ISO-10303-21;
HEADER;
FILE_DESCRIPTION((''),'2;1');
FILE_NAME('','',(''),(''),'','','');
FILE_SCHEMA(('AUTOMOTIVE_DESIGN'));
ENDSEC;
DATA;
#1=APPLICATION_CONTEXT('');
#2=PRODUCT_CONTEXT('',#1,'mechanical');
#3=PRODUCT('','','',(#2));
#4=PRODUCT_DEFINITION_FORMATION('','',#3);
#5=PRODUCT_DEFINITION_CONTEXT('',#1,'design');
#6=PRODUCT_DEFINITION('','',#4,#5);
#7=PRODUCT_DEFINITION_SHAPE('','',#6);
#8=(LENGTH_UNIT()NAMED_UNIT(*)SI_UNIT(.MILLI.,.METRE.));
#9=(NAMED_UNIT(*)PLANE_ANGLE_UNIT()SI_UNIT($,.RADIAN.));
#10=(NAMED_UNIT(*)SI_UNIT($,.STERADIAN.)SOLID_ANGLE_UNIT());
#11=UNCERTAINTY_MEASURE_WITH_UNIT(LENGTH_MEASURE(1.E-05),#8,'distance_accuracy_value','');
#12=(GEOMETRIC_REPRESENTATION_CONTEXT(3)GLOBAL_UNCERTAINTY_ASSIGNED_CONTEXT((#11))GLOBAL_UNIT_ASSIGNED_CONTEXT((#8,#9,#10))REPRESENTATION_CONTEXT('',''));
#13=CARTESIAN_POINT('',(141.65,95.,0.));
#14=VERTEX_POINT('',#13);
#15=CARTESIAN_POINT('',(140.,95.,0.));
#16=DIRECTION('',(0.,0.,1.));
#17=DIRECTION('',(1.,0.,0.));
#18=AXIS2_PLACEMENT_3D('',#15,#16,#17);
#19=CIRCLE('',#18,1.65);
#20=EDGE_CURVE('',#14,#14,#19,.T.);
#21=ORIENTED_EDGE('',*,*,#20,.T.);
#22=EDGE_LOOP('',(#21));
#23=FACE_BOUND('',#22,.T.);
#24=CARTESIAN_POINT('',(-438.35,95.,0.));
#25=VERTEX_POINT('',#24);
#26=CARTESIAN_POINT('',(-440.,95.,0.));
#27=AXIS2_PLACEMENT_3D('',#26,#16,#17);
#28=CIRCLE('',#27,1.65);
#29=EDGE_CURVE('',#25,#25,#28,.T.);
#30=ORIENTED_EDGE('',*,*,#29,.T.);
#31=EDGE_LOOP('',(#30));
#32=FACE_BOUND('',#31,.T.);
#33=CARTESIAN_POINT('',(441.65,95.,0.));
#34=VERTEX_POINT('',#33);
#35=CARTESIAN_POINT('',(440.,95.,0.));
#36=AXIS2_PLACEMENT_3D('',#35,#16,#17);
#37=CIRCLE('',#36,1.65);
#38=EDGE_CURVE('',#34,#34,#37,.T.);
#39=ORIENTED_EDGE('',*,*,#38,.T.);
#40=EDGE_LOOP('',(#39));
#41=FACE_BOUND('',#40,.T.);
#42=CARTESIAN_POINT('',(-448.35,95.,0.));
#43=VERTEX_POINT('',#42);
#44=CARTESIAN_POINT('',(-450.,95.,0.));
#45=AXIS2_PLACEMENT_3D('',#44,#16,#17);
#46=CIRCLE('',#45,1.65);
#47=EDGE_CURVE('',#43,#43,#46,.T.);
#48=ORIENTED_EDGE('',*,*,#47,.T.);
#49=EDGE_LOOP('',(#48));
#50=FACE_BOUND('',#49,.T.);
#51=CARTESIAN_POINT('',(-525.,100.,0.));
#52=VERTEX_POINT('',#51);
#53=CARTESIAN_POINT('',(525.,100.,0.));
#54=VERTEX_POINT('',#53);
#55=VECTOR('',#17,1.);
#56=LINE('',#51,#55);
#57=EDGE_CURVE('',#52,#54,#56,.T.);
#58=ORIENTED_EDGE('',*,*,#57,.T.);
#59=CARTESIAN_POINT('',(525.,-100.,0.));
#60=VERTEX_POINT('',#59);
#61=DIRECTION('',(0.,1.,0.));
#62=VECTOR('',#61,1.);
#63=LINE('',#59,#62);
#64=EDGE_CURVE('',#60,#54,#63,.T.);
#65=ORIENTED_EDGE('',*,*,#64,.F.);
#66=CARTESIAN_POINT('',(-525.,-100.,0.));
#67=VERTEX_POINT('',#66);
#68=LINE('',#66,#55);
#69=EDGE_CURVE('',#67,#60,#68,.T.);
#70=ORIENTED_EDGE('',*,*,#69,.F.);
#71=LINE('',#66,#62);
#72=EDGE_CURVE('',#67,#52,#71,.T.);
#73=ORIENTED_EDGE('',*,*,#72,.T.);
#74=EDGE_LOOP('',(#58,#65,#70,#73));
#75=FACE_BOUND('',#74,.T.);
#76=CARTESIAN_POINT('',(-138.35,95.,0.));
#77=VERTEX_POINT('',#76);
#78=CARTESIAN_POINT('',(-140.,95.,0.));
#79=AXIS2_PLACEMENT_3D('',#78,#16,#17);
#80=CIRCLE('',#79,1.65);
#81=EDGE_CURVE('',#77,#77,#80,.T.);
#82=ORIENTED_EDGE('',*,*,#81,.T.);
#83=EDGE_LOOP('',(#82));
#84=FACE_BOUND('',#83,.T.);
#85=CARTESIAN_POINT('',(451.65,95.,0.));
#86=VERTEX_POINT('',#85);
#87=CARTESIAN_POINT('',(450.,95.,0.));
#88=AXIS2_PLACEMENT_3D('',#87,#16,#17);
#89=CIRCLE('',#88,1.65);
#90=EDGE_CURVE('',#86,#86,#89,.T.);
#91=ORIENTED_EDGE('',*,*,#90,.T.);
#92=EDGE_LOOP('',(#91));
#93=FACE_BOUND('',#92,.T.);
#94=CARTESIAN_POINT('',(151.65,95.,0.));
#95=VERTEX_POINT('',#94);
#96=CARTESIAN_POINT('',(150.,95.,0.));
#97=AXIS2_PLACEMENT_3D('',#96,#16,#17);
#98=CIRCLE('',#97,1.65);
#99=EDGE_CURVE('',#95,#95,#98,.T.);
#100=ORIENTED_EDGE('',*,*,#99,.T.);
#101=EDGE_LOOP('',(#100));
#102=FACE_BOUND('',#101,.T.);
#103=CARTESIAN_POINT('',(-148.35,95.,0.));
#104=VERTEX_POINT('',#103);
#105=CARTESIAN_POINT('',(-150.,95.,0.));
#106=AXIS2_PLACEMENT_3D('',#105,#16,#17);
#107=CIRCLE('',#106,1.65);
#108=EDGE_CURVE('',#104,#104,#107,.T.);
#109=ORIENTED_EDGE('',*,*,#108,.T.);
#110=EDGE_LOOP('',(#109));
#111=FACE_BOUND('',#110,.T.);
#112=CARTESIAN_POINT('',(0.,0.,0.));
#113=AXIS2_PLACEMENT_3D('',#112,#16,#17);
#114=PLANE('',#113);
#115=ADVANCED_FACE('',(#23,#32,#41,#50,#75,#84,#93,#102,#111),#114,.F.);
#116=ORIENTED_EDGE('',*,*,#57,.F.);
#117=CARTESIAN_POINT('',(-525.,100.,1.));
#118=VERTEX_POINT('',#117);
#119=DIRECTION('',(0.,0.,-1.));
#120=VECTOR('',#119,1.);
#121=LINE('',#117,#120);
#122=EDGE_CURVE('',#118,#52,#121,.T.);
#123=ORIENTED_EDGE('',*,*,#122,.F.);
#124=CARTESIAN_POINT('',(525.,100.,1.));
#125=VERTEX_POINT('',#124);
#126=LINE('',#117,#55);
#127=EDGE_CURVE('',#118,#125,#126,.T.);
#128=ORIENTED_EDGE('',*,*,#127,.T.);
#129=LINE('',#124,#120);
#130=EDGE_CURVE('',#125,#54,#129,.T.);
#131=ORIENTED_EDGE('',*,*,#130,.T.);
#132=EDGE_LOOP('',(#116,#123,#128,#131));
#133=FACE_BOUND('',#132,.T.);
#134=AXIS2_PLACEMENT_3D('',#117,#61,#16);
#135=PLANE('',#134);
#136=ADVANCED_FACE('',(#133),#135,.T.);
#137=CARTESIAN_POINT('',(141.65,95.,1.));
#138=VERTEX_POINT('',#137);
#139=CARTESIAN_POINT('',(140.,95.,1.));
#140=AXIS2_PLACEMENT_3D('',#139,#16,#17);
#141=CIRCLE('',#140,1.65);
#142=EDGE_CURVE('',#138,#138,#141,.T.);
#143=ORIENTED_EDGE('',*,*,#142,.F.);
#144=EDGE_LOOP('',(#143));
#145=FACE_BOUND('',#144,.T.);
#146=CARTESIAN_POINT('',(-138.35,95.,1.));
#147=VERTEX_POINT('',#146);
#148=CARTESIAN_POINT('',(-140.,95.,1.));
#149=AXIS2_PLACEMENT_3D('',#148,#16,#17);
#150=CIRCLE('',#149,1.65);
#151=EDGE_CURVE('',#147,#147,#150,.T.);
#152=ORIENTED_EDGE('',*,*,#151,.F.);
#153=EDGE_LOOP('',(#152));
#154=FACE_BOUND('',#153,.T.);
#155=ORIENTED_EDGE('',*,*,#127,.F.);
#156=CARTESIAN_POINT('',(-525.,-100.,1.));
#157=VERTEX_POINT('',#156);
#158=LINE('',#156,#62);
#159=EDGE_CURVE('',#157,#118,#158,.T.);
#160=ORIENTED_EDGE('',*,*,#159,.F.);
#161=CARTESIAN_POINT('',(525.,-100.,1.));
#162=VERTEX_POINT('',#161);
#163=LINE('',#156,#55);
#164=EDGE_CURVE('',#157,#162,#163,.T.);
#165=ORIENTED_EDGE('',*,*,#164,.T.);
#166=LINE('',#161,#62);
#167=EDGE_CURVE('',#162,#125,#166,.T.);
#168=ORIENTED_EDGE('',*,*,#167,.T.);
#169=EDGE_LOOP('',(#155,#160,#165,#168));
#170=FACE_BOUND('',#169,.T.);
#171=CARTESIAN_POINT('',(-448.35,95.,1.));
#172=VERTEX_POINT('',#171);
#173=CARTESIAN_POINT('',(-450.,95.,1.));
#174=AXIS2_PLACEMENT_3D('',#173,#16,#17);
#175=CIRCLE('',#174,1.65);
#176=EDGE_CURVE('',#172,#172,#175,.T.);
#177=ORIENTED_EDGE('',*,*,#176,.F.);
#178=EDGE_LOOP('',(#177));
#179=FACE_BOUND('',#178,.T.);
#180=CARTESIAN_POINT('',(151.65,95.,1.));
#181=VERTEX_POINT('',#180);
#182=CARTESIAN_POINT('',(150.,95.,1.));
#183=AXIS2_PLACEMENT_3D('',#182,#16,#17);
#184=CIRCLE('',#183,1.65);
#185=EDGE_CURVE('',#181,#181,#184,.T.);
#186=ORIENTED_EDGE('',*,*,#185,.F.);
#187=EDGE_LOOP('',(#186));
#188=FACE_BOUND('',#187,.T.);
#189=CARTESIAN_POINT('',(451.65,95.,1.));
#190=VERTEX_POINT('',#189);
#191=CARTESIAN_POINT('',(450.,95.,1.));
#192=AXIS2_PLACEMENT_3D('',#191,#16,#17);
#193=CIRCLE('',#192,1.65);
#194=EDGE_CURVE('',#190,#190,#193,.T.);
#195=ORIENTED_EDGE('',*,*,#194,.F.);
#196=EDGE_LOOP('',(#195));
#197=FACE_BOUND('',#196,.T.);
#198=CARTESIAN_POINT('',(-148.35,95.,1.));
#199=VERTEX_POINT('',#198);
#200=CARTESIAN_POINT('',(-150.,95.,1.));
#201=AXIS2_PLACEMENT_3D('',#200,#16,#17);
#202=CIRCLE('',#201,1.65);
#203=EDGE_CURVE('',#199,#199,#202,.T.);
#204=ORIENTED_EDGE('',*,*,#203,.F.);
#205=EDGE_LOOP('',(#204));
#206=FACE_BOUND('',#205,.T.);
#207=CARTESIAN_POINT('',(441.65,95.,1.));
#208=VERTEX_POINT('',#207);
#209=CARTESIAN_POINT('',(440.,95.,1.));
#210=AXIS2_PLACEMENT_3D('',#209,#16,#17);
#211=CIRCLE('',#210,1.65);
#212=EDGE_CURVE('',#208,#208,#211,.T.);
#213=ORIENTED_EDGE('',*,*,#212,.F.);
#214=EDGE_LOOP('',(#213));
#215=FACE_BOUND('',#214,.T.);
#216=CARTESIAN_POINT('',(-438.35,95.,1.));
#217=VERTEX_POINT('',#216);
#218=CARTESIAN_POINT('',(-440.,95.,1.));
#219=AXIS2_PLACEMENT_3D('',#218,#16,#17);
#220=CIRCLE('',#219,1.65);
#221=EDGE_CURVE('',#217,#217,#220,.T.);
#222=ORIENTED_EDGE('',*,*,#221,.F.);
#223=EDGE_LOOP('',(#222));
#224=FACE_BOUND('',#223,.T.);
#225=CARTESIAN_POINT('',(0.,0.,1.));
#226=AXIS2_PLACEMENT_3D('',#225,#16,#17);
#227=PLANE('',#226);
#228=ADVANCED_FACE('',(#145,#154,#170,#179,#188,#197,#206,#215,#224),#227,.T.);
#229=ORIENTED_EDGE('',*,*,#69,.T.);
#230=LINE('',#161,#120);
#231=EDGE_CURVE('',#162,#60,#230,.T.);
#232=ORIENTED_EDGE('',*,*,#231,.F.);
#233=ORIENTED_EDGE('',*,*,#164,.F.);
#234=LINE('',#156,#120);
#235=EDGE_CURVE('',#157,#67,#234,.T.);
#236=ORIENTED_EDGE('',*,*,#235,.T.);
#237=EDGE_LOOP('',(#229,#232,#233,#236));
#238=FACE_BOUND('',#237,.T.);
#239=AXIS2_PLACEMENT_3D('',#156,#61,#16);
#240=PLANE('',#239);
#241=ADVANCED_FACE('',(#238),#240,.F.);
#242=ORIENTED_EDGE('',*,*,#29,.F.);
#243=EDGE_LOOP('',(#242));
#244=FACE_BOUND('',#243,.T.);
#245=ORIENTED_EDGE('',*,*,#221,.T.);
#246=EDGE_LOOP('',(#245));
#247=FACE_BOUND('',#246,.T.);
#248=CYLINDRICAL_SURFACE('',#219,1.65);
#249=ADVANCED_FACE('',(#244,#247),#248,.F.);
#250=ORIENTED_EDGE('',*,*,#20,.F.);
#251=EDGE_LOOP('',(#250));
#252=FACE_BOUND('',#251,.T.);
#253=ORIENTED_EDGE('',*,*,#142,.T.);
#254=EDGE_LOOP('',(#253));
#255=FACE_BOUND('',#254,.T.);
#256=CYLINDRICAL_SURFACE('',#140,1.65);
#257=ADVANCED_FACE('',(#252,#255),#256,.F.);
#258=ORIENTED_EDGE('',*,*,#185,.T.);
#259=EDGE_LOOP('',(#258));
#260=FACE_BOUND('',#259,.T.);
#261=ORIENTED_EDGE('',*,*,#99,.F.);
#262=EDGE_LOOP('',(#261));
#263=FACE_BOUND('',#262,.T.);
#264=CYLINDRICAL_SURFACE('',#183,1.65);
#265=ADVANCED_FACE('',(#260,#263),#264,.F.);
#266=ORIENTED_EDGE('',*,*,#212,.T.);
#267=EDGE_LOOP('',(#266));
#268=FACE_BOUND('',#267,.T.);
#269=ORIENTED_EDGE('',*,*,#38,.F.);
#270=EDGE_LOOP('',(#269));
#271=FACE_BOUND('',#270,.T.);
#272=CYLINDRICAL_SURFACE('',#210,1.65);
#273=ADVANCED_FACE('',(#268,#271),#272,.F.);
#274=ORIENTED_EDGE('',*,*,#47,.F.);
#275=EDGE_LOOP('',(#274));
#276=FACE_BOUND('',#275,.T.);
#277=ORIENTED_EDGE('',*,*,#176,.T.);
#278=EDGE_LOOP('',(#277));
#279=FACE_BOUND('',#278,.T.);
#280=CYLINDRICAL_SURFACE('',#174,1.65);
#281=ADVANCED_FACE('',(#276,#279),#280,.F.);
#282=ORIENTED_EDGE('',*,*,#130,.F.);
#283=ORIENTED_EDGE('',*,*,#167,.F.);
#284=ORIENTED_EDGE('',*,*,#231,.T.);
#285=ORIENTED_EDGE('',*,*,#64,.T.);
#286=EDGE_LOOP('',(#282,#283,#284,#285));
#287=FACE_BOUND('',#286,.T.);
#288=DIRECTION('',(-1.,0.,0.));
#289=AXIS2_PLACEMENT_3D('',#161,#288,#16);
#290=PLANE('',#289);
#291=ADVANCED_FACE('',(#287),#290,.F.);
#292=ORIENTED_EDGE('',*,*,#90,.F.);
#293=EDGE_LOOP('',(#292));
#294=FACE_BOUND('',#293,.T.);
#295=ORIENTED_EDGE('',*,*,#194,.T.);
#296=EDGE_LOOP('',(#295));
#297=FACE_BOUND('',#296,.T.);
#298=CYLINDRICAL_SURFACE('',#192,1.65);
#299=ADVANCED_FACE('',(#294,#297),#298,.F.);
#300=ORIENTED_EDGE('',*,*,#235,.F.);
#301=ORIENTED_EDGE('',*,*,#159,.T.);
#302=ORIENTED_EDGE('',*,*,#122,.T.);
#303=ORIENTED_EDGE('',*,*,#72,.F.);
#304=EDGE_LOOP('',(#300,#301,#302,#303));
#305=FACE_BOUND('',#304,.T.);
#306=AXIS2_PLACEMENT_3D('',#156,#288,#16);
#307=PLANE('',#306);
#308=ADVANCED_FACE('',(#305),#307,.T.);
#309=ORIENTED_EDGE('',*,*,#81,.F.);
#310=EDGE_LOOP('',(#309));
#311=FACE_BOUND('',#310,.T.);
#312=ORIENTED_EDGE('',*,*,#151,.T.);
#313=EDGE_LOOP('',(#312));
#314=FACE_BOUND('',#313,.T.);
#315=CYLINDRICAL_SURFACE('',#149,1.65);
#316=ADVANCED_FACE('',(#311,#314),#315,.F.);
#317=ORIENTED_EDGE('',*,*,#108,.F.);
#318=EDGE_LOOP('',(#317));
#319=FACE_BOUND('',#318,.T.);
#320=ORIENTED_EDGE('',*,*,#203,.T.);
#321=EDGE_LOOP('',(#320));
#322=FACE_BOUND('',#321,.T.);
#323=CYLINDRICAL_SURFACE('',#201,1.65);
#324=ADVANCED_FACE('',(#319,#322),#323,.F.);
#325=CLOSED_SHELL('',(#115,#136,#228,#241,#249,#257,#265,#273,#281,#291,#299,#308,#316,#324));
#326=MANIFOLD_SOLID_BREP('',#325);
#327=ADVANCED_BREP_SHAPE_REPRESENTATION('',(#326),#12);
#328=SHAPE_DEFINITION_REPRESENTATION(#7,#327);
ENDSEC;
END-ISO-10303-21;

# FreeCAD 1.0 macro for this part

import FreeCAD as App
import Part
import Sketcher

V = App.Vector
Q = App.Units.Quantity


def add_polygon(sketch, points):
    """Adds a closed chain of lines whose ends are joined by coincident constraints."""
    first, n = sketch.GeometryCount, len(points)
    for a, b in zip(points, points[1:] + points[:1]):
        sketch.addGeometry(Part.LineSegment(App.Vector(*a, 0), App.Vector(*b, 0)), False)
    for i in range(n):
        sketch.addConstraint(Sketcher.Constraint("Coincident", first + i, 2, first + (i + 1) % n, 1))

doc = App.newDocument("Part")
body = doc.addObject("PartDesign::Body", "Body")

# Sketch on XY plane
sketch1 = doc.addObject("Sketcher::SketchObject", "Sketch")
body.addObject(sketch1)
sketch1.AttachmentSupport = (doc.XY_Plane, [""])
sketch1.MapMode = "FlatFace"
add_polygon(sketch1, [(-525, 100), (-525, -100), (525, -100), (525, 100)])  # lines 0-3
sketch1.addConstraint(Sketcher.Constraint("Vertical", 0))
sketch1.addConstraint(Sketcher.Constraint("Horizontal", 1))
sketch1.addConstraint(Sketcher.Constraint("Vertical", 2))
sketch1.addConstraint(Sketcher.Constraint("Horizontal", 3))
sketch1.addConstraint(Sketcher.Constraint("Symmetric", 0, 2, 2, 2, -1, 1))
sketch1.addConstraint(Sketcher.Constraint("DistanceX", 1, 1, 1, 2, Q("1050 mm")))
sketch1.addConstraint(Sketcher.Constraint("DistanceY", 0, 2, 0, 1, Q("200 mm")))
pad1 = doc.addObject("PartDesign::Pad", "Pad")
body.addObject(pad1)
pad1.Profile = sketch1
pad1.Length = 1

# Sketch on XY plane
sketch2 = doc.addObject("Sketcher::SketchObject", "Sketch001")
body.addObject(sketch2)
sketch2.AttachmentSupport = (doc.XY_Plane, [""])
sketch2.MapMode = "FlatFace"
sketch2.AttachmentOffset = App.Placement(V(0, 0, 1), App.Rotation())
sketch2.addGeometry(Part.Circle(V(-450, 95, 0), V(0, 0, 1), 1.6), False)
sketch2.addGeometry(Part.Circle(V(-440, 95, 0), V(0, 0, 1), 1.6), False)
sketch2.addGeometry(Part.Circle(V(-150, 95, 0), V(0, 0, 1), 1.6), False)
sketch2.addGeometry(Part.Circle(V(-140, 95, 0), V(0, 0, 1), 1.6), False)
sketch2.addConstraint(Sketcher.Constraint("Equal", 0, 1))
sketch2.addConstraint(Sketcher.Constraint("Equal", 1, 2))
sketch2.addConstraint(Sketcher.Constraint("Equal", 2, 3))
sketch2.addConstraint(Sketcher.Constraint("Horizontal", 0, 3, 1, 3))
sketch2.addConstraint(Sketcher.Constraint("Horizontal", 1, 3, 2, 3))
sketch2.addConstraint(Sketcher.Constraint("Horizontal", 2, 3, 3, 3))
sketch2.addConstraint(Sketcher.Constraint("Diameter", 0, Q("3.3 mm")))
sketch2.addConstraint(Sketcher.Constraint("DistanceX", 0, 3, -1, 1, Q("450 mm")))
sketch2.addConstraint(Sketcher.Constraint("DistanceY", -1, 1, 0, 3, Q("95 mm")))
sketch2.addConstraint(Sketcher.Constraint("DistanceX", 1, 3, -1, 1, Q("440 mm")))
sketch2.addConstraint(Sketcher.Constraint("DistanceX", 2, 3, -1, 1, Q("150 mm")))
sketch2.addConstraint(Sketcher.Constraint("DistanceX", 3, 3, -1, 1, Q("140 mm")))
doc.recompute()
hole = doc.addObject("PartDesign::Hole", "Hole")
body.addObject(hole)
hole.Profile = sketch2
hole.ThreadType = "None"
hole.Diameter = 3.3
hole.DepthType = "ThroughAll"
doc.recompute()

mirrored = doc.addObject("PartDesign::Mirrored", "Mirrored")
body.addObject(mirrored)
mirrored.Originals = [hole]
mirrored.MirrorPlane = (doc.YZ_Plane, [""])
body.Tip = mirrored

doc.recompute()
